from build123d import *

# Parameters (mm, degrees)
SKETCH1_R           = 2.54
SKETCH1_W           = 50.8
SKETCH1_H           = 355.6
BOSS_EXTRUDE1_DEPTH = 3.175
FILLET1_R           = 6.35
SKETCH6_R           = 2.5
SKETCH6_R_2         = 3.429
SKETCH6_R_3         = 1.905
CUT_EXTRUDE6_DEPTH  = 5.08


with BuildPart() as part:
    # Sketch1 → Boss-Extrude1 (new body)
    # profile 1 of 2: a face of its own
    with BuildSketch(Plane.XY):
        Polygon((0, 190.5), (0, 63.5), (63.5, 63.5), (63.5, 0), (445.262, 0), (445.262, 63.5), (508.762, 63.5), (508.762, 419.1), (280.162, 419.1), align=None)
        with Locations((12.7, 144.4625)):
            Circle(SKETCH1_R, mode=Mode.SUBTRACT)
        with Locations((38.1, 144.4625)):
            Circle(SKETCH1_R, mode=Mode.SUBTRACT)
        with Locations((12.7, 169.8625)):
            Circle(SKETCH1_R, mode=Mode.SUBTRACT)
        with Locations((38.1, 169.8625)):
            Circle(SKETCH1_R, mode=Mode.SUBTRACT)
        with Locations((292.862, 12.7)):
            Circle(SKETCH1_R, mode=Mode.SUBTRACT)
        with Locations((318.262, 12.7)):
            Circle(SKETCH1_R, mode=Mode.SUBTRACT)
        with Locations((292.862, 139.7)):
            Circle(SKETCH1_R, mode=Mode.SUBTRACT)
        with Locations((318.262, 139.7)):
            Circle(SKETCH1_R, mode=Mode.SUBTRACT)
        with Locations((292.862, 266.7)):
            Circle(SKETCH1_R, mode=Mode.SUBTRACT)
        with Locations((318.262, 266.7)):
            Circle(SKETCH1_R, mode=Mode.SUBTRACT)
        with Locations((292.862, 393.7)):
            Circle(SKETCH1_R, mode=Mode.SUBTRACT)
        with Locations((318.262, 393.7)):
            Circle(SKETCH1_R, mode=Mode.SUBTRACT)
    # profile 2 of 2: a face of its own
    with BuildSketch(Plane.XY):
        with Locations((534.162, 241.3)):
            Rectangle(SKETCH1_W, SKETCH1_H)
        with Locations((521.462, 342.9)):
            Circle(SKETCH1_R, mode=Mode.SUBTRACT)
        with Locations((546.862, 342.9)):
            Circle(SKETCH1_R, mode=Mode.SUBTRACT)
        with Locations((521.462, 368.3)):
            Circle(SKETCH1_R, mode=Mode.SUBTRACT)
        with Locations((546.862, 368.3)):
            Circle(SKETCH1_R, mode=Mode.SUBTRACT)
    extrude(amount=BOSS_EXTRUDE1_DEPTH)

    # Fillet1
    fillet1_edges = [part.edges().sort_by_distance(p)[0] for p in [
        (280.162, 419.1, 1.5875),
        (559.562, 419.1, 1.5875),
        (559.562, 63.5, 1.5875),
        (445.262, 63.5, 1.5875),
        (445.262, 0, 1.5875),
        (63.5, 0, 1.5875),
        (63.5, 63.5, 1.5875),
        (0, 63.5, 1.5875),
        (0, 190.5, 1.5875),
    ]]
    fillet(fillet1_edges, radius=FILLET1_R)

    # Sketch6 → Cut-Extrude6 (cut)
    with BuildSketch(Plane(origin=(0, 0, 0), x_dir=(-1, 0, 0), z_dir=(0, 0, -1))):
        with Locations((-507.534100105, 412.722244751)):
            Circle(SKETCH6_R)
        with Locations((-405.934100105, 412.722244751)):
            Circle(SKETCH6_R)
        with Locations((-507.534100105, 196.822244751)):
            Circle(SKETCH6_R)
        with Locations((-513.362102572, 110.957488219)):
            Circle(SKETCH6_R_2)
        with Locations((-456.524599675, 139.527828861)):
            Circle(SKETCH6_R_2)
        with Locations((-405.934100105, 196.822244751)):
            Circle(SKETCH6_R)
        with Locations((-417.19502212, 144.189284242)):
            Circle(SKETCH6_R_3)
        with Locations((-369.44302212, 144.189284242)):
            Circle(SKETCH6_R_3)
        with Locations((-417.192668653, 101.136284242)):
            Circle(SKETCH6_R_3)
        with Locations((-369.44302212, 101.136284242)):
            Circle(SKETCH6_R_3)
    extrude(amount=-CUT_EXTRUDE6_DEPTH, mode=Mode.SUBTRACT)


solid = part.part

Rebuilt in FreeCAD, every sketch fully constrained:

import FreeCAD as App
import Part
import Sketcher

V = App.Vector
Q = App.Units.Quantity


def edges_at(feature, points):
    """Names of the edges that pass closest to the given points."""
    edges = feature.Shape.Edges
    near = lambda p: min(range(len(edges)), key=lambda i: edges[i].distToShape(Part.Vertex(*p))[0])
    return sorted({f"Edge{near(p) + 1}" for p in points})


def add_polygon(sketch, points):
    """Adds a closed chain of lines whose ends are joined by coincident constraints."""
    first, n = sketch.GeometryCount, len(points)
    for a, b in zip(points, points[1:] + points[:1]):
        sketch.addGeometry(Part.LineSegment(App.Vector(*a, 0), App.Vector(*b, 0)), False)
    for i in range(n):
        sketch.addConstraint(Sketcher.Constraint("Coincident", first + i, 2, first + (i + 1) % n, 1))

doc = App.newDocument("Part")
body = doc.addObject("PartDesign::Body", "Body")

sketch1 = doc.addObject("Sketcher::SketchObject", "Sketch")
body.addObject(sketch1)
sketch1.AttachmentSupport = (doc.XY_Plane, [""])
sketch1.MapMode = "FlatFace"
add_polygon(sketch1, [(0, 190.5), (0, 63.5), (63.5, 63.5), (63.5, 0), (445.262, 0), (445.262, 63.5), (559.562, 63.5), (559.562, 419.1), (280.162, 419.1)])
sketch1.addGeometry(Part.Circle(V(12.7, 144.4625, 0), V(0, 0, 1), 2.54), False)
sketch1.addGeometry(Part.Circle(V(38.1, 144.4625, 0), V(0, 0, 1), 2.54), False)
sketch1.addGeometry(Part.Circle(V(12.7, 169.8625, 0), V(0, 0, 1), 2.54), False)
sketch1.addGeometry(Part.Circle(V(38.1, 169.8625, 0), V(0, 0, 1), 2.54), False)
sketch1.addGeometry(Part.Circle(V(292.862, 12.7, 0), V(0, 0, 1), 2.54), False)
sketch1.addGeometry(Part.Circle(V(318.262, 12.7, 0), V(0, 0, 1), 2.54), False)
sketch1.addGeometry(Part.Circle(V(292.862, 139.7, 0), V(0, 0, 1), 2.54), False)
sketch1.addGeometry(Part.Circle(V(318.262, 139.7, 0), V(0, 0, 1), 2.54), False)
sketch1.addGeometry(Part.Circle(V(292.862, 266.7, 0), V(0, 0, 1), 2.54), False)
sketch1.addGeometry(Part.Circle(V(318.262, 266.7, 0), V(0, 0, 1), 2.54), False)
sketch1.addGeometry(Part.Circle(V(292.862, 393.7, 0), V(0, 0, 1), 2.54), False)
sketch1.addGeometry(Part.Circle(V(318.262, 393.7, 0), V(0, 0, 1), 2.54), False)
sketch1.addGeometry(Part.Circle(V(546.862, 368.3, 0), V(0, 0, 1), 2.54), False)
sketch1.addGeometry(Part.Circle(V(521.462, 342.9, 0), V(0, 0, 1), 2.54), False)
sketch1.addGeometry(Part.Circle(V(546.862, 342.9, 0), V(0, 0, 1), 2.54), False)
sketch1.addGeometry(Part.Circle(V(521.462, 368.3, 0), V(0, 0, 1), 2.54), False)
sketch1.addConstraint([
    Sketcher.Constraint("Vertical", 0),
    Sketcher.Constraint("Horizontal", 1),
    Sketcher.Constraint("Vertical", 2),
    Sketcher.Constraint("Horizontal", 3),
    Sketcher.Constraint("Vertical", 4),
    Sketcher.Constraint("Horizontal", 5),
    Sketcher.Constraint("Vertical", 6),
    Sketcher.Constraint("Horizontal", 7),
    Sketcher.Constraint("Equal", 9, 10),
    Sketcher.Constraint("Equal", 10, 11),
    Sketcher.Constraint("Equal", 11, 12),
    Sketcher.Constraint("Equal", 12, 13),
    Sketcher.Constraint("Equal", 13, 14),
    Sketcher.Constraint("Equal", 14, 15),
    Sketcher.Constraint("Equal", 15, 16),
    Sketcher.Constraint("Equal", 16, 17),
    Sketcher.Constraint("Equal", 17, 18),
    Sketcher.Constraint("Equal", 18, 19),
    Sketcher.Constraint("Equal", 19, 20),
    Sketcher.Constraint("Equal", 20, 21),
    Sketcher.Constraint("Equal", 21, 22),
    Sketcher.Constraint("Equal", 22, 23),
    Sketcher.Constraint("Equal", 23, 24),
    Sketcher.Constraint("PointOnObject", 0, 2, -2),
    Sketcher.Constraint("PointOnObject", 2, 2, -1),
    Sketcher.Constraint("Horizontal", 9, 3, 10, 3),
    Sketcher.Constraint("Horizontal", 11, 3, 12, 3),
    Sketcher.Constraint("Horizontal", 13, 3, 14, 3),
    Sketcher.Constraint("Horizontal", 15, 3, 16, 3),
    Sketcher.Constraint("Horizontal", 17, 3, 18, 3),
    Sketcher.Constraint("Horizontal", 19, 3, 20, 3),
    Sketcher.Constraint("Horizontal", 22, 3, 23, 3),
    Sketcher.Constraint("Horizontal", 21, 3, 24, 3),
    Sketcher.Constraint("Horizontal", 1, 2, 4, 2),
    Sketcher.Constraint("Vertical", 9, 3, 11, 3),
    Sketcher.Constraint("Vertical", 10, 3, 12, 3),
    Sketcher.Constraint("Vertical", 13, 3, 15, 3),
    Sketcher.Constraint("Vertical", 14, 3, 16, 3),
    Sketcher.Constraint("Vertical", 15, 3, 17, 3),
    Sketcher.Constraint("Vertical", 16, 3, 18, 3),
    Sketcher.Constraint("Vertical", 17, 3, 19, 3),
    Sketcher.Constraint("Vertical", 18, 3, 20, 3),
    Sketcher.Constraint("Vertical", 21, 3, 23, 3),
    Sketcher.Constraint("Vertical", 22, 3, 24, 3),
    Sketcher.Constraint("Equal", 1, 2),
    Sketcher.Constraint("Diameter", 9, Q("0.2 in")),
    Sketcher.Constraint("DistanceX", 7, 2, 7, 1, Q("11 in")),
    Sketcher.Constraint("DistanceY", 0, 2, 0, 1, Q("5 in")),
    Sketcher.Constraint("DistanceY", 6, 1, 6, 2, Q("14 in")),
    Sketcher.Constraint("DistanceX", 1, 1, 1, 2, Q("2.5 in")),
    Sketcher.Constraint("DistanceX", 5, 1, 5, 2, Q("4.5 in")),
    Sketcher.Constraint("DistanceX", 9, 3, 10, 3, Q("1 in")),
    Sketcher.Constraint("DistanceY", 9, 3, 11, 3, Q("1 in")),
    Sketcher.Constraint("DistanceX", 13, 3, 14, 3, Q("1 in")),
    Sketcher.Constraint("DistanceY", 13, 3, 15, 3, Q("5 in")),
    Sketcher.Constraint("DistanceY", 15, 3, 17, 3, Q("5 in")),
    Sketcher.Constraint("DistanceY", 17, 3, 19, 3, Q("5 in")),
    Sketcher.Constraint("DistanceX", 20, 3, 21, 3, Q("9 in")),
    Sketcher.Constraint("DistanceY", 21, 3, 20, 3, Q("1 in")),
    Sketcher.Constraint("DistanceX", 22, 3, 21, 3, Q("1 in")),
    Sketcher.Constraint("DistanceY", 22, 3, 21, 3, Q("1 in")),
    Sketcher.Constraint("DistanceY", 13, 3, 0, 2, Q("2 in")),
    Sketcher.Constraint("DistanceX", 10, 3, 1, 2, Q("1 in")),
    Sketcher.Constraint("DistanceX", 14, 3, 3, 2, Q("5 in")),
    Sketcher.Constraint("DistanceX", 3, 1, 3, 2, Q("15.03 in")),
    Sketcher.Constraint("DistanceY", -1, 1, 9, 3, Q("5.6875 in")),
])
pad1 = doc.addObject("PartDesign::Pad", "Pad")
body.addObject(pad1)
pad1.Profile = sketch1
pad1.Length = Q("0.125 in")
doc.recompute()

fillet = doc.addObject("PartDesign::Fillet", "Fillet")
body.addObject(fillet)
fillet.Base = (pad1, edges_at(pad1, [
    (280.162, 419.1, 1.587),
    (559.562, 419.1, 1.587),
    (559.562, 63.5, 1.587),
    (445.262, 63.5, 1.587),
    (445.262, 0, 1.587),
    (63.5, 0, 1.587),
    (63.5, 63.5, 1.587),
    (0, 63.5, 1.587),
    (0, 190.5, 1.587),
]))
fillet.Radius = Q("0.25 in")

sketch2 = doc.addObject("Sketcher::SketchObject", "Sketch001")
body.addObject(sketch2)
sketch2.AttachmentSupport = (doc.XY_Plane, [""])
sketch2.MapMode = "FlatFace"
sketch2.addGeometry([
    Part.Circle(V(507.5341, 412.722245, 0), V(0, 0, 1), 2.5),
    Part.Circle(V(405.9341, 412.722245, 0), V(0, 0, 1), 2.5),
    Part.Circle(V(507.5341, 196.822245, 0), V(0, 0, 1), 2.5),
    Part.Circle(V(513.362103, 110.957488, 0), V(0, 0, 1), 3.429),
    Part.Circle(V(456.5246, 139.527829, 0), V(0, 0, 1), 3.429),
    Part.Circle(V(405.9341, 196.822245, 0), V(0, 0, 1), 2.5),
    Part.Circle(V(417.195022, 144.189284, 0), V(0, 0, 1), 1.905),
    Part.Circle(V(369.443022, 144.189284, 0), V(0, 0, 1), 1.905),
    Part.Circle(V(417.192669, 101.136284, 0), V(0, 0, 1), 1.905),
    Part.Circle(V(369.443022, 101.136284, 0), V(0, 0, 1), 1.905),
], False)
sketch2.addConstraint([
    Sketcher.Constraint("Equal", 0, 1),
    Sketcher.Constraint("Equal", 1, 2),
    Sketcher.Constraint("Equal", 3, 4),
    Sketcher.Constraint("Equal", 2, 5),
    Sketcher.Constraint("Equal", 6, 7),
    Sketcher.Constraint("Equal", 7, 8),
    Sketcher.Constraint("Equal", 8, 9),
    Sketcher.Constraint("Horizontal", 0, 3, 1, 3),
    Sketcher.Constraint("Horizontal", 2, 3, 5, 3),
    Sketcher.Constraint("Horizontal", 6, 3, 7, 3),
    Sketcher.Constraint("Horizontal", 8, 3, 9, 3),
    Sketcher.Constraint("Vertical", 0, 3, 2, 3),
    Sketcher.Constraint("Vertical", 1, 3, 5, 3),
    Sketcher.Constraint("Vertical", 7, 3, 9, 3),
    Sketcher.Constraint("Diameter", 3, Q("0.27 in")),
    Sketcher.Constraint("Diameter", 6, Q("0.15 in")),
    Sketcher.Constraint("DistanceX", 1, 3, 0, 3, Q("4 in")),
    Sketcher.Constraint("DistanceY", 2, 3, 0, 3, Q("8.5 in")),
    Sketcher.Constraint("Diameter", 0, 5.0),
    Sketcher.Constraint("DistanceX", 7, 3, 6, 3, Q("1.88 in")),
    Sketcher.Constraint("DistanceY", 8, 3, 6, 3, Q("1.695 in")),
    Sketcher.Constraint("DistanceX", -1, 1, 0, 3, 507.5341),
    Sketcher.Constraint("DistanceX", -1, 1, 4, 3, 456.5246),
    Sketcher.Constraint("DistanceY", -1, 1, 3, 3, 110.957488),
    Sketcher.Constraint("DistanceY", -1, 1, 4, 3, 139.527829),
    Sketcher.Constraint("DistanceX", -1, 1, 8, 3, 417.192669),
    Sketcher.Constraint("DistanceY", 6, 3, 5, 3, 52.632961),
    Sketcher.Constraint("DistanceX", 6, 3, 3, 3, 96.16708),
    Sketcher.Constraint("DistanceY", -1, 1, 0, 3, 412.722245),
    Sketcher.Constraint("DistanceX", -1, 1, 3, 3, 513.362103),
])
pocket1 = doc.addObject("PartDesign::Pocket", "Pocket")
body.addObject(pocket1)
pocket1.Profile = sketch2
pocket1.Length = Q("0.2 in")
pocket1.Reversed = True

doc.recompute()
